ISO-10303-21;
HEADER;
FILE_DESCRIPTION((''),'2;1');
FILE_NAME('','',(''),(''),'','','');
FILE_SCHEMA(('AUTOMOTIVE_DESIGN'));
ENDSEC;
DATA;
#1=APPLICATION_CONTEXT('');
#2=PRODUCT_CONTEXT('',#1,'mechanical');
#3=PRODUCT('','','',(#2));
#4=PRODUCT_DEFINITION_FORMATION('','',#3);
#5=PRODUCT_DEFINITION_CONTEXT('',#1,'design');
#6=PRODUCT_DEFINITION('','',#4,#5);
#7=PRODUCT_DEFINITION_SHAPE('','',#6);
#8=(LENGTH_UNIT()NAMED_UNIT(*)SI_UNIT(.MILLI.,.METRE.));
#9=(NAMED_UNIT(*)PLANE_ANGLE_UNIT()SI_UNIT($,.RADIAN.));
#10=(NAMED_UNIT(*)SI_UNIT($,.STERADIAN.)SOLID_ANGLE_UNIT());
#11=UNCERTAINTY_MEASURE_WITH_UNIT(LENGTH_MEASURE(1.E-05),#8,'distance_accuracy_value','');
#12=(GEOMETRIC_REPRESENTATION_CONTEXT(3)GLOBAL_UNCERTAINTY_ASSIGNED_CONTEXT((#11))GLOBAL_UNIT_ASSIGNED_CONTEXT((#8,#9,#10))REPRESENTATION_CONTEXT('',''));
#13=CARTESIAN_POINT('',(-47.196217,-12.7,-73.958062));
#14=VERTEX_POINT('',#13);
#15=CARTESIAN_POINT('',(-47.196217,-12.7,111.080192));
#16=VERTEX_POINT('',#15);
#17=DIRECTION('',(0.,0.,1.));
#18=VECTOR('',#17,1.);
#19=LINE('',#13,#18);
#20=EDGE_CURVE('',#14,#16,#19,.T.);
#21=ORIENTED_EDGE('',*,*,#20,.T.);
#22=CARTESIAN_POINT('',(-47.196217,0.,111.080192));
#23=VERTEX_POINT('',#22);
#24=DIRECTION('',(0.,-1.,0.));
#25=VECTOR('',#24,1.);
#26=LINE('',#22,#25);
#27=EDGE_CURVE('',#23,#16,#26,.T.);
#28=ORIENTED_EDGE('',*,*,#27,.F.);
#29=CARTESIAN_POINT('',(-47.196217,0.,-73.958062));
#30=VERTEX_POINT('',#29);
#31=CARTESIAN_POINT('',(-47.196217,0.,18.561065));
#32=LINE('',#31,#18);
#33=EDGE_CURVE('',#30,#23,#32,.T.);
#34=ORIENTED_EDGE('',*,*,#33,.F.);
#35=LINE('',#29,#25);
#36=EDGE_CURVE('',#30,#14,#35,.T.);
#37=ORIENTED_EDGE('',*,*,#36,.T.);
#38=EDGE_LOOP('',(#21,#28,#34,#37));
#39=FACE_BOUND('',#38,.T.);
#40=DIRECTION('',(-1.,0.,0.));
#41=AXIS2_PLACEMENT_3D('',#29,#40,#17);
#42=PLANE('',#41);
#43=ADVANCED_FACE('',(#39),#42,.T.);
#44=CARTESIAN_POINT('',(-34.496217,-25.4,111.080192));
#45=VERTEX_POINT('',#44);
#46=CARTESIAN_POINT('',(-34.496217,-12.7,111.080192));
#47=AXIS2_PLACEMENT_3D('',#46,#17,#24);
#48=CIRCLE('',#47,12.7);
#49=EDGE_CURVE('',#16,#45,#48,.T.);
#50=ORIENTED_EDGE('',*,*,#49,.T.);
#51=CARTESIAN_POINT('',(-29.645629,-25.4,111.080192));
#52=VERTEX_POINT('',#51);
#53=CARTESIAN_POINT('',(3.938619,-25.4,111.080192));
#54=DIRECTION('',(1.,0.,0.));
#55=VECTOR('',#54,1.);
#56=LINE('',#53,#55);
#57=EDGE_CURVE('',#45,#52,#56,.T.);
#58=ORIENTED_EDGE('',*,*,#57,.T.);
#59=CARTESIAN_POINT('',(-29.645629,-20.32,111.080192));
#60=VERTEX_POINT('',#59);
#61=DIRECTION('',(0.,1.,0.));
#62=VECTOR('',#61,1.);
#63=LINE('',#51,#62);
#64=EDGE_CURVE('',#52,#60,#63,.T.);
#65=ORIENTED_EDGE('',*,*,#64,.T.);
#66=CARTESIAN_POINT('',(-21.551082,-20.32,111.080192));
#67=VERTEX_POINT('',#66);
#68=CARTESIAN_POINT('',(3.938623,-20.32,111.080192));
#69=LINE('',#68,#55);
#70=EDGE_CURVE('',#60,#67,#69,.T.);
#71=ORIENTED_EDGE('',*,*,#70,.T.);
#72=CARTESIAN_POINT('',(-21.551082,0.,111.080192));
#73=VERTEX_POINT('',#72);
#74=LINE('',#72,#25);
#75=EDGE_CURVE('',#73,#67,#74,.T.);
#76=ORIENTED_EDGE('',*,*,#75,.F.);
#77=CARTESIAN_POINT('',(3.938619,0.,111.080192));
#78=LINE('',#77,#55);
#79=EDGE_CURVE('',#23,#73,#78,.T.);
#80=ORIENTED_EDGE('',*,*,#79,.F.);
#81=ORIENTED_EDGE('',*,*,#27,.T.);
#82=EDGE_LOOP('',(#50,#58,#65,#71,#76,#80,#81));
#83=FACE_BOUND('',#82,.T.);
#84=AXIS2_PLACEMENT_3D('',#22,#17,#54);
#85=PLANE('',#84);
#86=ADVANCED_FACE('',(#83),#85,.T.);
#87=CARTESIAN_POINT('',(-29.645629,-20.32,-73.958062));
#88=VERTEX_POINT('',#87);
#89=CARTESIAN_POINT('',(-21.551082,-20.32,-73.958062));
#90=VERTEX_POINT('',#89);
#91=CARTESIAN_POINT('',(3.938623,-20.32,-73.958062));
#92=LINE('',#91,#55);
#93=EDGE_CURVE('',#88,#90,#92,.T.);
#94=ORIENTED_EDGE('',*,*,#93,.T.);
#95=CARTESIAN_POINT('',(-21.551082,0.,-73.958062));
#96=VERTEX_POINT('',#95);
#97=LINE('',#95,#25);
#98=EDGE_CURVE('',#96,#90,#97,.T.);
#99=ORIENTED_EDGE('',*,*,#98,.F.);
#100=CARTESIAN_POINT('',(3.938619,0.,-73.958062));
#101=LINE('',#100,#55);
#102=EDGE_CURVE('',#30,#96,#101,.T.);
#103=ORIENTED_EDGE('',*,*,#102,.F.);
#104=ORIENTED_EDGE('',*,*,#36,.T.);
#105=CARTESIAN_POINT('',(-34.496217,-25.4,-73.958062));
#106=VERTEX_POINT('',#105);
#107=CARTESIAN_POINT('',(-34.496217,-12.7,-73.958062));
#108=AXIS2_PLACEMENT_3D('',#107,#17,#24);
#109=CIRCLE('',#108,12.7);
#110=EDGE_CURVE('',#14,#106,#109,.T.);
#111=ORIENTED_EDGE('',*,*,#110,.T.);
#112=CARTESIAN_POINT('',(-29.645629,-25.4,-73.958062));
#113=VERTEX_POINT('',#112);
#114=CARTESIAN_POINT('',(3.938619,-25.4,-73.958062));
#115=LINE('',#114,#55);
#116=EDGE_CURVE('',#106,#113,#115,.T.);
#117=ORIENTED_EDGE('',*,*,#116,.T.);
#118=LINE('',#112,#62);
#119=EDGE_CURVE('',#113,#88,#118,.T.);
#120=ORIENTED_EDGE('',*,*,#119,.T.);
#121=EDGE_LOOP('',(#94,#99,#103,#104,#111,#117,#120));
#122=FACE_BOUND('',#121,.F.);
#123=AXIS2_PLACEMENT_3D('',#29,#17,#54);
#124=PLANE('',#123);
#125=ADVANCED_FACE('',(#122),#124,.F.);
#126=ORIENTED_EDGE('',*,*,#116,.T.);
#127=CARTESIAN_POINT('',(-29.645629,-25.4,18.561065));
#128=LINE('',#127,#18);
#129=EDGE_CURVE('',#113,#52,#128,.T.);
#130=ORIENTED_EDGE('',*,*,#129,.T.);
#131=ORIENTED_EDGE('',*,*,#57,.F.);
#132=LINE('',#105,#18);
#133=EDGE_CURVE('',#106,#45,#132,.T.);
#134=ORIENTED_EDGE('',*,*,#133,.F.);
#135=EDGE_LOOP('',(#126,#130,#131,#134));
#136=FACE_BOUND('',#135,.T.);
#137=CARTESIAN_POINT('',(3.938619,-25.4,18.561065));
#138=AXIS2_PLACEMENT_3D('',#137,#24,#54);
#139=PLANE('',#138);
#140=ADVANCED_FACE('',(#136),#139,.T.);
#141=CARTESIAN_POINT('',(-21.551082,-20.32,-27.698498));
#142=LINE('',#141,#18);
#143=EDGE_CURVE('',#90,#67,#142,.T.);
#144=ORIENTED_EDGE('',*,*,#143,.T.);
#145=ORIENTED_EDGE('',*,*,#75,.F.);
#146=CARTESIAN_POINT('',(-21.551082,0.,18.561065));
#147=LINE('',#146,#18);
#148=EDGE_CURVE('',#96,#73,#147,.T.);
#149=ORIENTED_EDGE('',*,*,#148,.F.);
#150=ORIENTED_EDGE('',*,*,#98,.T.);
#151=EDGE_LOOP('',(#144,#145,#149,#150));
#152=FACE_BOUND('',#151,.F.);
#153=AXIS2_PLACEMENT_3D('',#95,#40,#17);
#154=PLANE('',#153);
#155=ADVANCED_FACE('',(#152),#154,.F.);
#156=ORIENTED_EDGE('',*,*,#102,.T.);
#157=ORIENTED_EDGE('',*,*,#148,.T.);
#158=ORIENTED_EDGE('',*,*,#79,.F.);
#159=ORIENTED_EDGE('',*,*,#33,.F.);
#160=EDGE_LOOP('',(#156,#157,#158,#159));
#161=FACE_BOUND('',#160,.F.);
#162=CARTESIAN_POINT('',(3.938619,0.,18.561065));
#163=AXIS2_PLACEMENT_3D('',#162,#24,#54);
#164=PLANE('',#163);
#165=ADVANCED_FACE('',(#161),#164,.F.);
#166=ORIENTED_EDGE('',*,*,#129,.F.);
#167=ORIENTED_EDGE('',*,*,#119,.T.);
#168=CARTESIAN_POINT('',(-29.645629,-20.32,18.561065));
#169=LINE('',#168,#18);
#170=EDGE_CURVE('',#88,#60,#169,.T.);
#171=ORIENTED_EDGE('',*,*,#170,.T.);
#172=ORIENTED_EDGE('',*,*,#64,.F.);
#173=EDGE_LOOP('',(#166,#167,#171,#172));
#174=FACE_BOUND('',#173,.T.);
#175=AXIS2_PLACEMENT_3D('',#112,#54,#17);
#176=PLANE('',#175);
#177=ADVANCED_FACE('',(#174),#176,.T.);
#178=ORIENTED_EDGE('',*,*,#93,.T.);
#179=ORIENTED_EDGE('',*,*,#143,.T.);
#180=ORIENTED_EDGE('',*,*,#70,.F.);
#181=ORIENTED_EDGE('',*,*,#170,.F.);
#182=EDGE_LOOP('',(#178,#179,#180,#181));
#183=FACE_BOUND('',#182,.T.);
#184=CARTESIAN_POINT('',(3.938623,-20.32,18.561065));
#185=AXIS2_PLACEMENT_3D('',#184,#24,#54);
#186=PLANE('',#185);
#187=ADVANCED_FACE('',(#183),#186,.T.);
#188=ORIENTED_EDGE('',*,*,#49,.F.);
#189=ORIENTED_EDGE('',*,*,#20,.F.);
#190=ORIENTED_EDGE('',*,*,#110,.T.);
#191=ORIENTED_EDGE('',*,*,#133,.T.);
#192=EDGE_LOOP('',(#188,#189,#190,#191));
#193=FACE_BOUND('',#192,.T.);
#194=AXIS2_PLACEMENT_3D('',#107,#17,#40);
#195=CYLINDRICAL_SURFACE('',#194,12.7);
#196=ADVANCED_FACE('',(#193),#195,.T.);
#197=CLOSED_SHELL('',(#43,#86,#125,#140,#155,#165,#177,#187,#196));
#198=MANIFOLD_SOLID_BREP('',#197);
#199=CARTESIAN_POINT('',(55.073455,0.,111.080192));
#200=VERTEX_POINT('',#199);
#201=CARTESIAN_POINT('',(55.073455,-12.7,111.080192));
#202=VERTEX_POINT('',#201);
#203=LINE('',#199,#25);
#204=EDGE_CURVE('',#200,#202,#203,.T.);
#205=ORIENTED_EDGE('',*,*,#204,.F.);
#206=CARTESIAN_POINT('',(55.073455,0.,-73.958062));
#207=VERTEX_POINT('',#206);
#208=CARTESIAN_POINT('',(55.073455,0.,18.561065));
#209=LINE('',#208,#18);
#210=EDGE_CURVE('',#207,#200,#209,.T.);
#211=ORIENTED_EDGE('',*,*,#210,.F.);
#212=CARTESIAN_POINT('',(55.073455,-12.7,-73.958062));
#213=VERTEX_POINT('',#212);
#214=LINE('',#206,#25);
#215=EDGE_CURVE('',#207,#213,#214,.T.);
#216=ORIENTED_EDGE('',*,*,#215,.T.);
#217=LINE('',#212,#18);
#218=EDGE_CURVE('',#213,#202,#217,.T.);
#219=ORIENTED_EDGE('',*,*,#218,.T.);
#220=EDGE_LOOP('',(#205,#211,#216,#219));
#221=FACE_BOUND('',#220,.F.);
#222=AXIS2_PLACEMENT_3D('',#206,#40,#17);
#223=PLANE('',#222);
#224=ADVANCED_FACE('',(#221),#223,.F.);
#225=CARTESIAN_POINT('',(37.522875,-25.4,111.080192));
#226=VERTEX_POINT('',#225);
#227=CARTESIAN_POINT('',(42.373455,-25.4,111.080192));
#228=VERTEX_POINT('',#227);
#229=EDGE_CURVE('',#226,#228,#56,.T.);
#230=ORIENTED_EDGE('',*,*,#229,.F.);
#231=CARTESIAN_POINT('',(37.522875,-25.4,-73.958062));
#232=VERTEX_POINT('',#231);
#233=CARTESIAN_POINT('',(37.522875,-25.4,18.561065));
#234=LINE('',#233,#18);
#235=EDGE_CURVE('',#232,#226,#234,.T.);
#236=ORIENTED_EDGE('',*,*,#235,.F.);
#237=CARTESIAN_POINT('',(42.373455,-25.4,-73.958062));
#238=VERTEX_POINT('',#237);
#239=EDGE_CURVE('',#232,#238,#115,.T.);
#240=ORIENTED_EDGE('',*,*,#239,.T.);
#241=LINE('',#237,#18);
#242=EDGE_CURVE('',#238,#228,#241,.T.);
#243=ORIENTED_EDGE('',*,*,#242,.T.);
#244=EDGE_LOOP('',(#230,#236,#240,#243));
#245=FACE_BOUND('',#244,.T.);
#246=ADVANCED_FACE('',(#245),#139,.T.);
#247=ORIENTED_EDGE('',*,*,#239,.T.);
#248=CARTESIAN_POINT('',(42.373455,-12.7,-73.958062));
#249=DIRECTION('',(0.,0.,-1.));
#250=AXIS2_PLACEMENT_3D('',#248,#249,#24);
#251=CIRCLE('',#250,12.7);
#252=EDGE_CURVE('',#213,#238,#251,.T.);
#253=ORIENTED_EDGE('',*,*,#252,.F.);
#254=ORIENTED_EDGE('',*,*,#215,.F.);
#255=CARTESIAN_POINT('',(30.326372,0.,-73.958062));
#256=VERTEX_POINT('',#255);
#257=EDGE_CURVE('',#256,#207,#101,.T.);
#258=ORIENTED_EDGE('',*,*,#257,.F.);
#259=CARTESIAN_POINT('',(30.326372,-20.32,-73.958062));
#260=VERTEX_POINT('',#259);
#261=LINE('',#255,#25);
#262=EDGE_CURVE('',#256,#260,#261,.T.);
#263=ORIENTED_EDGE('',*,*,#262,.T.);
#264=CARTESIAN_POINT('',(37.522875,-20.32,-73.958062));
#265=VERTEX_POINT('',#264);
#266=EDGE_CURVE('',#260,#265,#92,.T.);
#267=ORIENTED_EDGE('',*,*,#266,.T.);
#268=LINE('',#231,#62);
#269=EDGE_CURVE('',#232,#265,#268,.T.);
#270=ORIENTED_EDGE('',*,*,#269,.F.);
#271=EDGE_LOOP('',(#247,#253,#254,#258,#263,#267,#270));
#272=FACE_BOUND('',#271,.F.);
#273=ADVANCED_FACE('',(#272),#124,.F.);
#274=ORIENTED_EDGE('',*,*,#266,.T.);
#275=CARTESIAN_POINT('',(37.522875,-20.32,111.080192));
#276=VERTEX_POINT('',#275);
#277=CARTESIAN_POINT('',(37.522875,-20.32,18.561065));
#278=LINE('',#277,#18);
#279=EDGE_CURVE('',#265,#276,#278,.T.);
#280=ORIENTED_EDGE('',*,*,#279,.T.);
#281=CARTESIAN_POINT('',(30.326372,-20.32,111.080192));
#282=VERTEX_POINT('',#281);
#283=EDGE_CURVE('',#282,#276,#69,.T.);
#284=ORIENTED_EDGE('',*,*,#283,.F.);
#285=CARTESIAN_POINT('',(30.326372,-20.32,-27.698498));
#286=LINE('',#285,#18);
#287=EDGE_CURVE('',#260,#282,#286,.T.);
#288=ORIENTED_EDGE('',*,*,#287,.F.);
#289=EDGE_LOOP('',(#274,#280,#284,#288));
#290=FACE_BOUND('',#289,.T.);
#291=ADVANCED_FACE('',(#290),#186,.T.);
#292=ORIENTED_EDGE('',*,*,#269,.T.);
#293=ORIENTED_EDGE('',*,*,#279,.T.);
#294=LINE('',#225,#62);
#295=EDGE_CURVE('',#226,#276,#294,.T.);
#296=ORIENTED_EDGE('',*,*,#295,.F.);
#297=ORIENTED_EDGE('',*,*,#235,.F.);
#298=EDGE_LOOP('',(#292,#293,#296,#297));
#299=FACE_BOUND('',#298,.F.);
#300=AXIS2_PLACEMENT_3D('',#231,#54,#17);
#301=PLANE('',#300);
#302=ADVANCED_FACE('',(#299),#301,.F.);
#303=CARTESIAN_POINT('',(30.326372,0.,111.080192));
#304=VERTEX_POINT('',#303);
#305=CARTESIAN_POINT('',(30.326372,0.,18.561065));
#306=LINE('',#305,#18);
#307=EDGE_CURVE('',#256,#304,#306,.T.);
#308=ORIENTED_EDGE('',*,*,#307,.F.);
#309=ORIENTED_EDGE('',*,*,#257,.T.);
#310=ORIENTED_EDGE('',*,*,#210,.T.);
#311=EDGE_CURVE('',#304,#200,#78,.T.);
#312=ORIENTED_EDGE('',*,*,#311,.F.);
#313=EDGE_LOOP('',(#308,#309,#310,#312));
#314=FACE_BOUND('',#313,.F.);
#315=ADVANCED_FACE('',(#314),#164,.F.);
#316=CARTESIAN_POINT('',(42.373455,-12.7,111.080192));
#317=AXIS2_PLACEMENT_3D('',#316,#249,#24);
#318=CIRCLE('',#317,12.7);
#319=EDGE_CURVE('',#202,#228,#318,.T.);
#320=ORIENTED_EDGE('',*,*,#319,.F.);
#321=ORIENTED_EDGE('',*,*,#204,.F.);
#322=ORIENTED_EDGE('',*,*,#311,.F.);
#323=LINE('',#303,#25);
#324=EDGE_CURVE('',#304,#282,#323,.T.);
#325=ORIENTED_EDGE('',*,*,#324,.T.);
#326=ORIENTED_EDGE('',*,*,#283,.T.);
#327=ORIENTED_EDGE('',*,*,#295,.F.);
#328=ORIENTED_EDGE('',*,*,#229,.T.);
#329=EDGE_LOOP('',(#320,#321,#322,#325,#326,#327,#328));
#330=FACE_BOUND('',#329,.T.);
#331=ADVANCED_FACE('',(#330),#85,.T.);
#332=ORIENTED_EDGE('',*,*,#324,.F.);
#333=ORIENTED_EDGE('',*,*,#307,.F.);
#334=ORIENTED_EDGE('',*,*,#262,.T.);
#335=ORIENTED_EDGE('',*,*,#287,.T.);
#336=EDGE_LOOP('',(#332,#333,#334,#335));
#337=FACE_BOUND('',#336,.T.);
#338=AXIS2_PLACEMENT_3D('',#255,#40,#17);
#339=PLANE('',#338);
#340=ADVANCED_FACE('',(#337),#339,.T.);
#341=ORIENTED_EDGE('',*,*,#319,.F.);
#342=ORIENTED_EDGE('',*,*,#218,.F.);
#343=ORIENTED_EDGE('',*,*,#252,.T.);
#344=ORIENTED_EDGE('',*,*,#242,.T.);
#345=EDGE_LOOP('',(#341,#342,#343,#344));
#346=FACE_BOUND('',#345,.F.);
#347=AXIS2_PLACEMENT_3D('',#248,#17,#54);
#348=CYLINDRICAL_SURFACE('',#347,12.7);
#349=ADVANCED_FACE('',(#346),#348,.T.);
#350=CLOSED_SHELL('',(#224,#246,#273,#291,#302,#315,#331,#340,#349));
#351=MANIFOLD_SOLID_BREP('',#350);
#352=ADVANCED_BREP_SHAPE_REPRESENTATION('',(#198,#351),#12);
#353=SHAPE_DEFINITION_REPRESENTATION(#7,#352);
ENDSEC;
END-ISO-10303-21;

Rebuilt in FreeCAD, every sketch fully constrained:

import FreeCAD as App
import Part
import Sketcher
from FreeCAD import Vector
Q = App.Units.Quantity


def edges_at(feature, points):
    """Names of the edges that pass closest to the given points."""
    edges = feature.Shape.Edges
    near = lambda p: min(range(len(edges)), key=lambda i: edges[i].distToShape(Part.Vertex(*p))[0])
    return sorted({f"Edge{near(p) + 1}" for p in points})


def add_polygon(sketch, points):
    """Adds a closed chain of lines whose ends are joined by coincident constraints."""
    first, n = sketch.GeometryCount, len(points)
    for a, b in zip(points, points[1:] + points[:1]):
        sketch.addGeometry(Part.LineSegment(App.Vector(*a, 0), App.Vector(*b, 0)), False)
    for i in range(n):
        sketch.addConstraint(Sketcher.Constraint("Coincident", first + i, 2, first + (i + 1) % n, 1))

doc = App.newDocument("Part")
body = doc.addObject("PartDesign::Body", "Body")
body.AllowCompound = True

sketch1 = body.newObject("Sketcher::SketchObject", "Sketch")
sketch1.AttachmentSupport = (doc.getObject("XZ_Plane"), [""])
sketch1.MapMode = "FlatFace"
add_polygon(sketch1, [(-47.196217, 111.080192), (-47.196217, -73.958062), (55.073455, -73.958062), (55.073455, 111.080192)])
sketch1.addConstraint([
    Sketcher.Constraint("Vertical", 0),
    Sketcher.Constraint("Horizontal", 1),
    Sketcher.Constraint("Vertical", 2),
    Sketcher.Constraint("Horizontal", 3),
    Sketcher.Constraint("DistanceX", 1, 1, 1, 2, Q("102.269672 mm")),
    Sketcher.Constraint("DistanceY", 0, 2, 0, 1, Q("185.038254 mm")),
    Sketcher.Constraint("DistanceY", 0, 2, -1, 1, Q("73.958062 mm")),
    Sketcher.Constraint("DistanceX", 0, 2, -1, 1, Q("47.196217 mm")),
])
pad1 = body.newObject("PartDesign::Pad", "Pad")
pad1.Profile = sketch1
pad1.Length = Q("1 in")
doc.recompute()

fillet = body.newObject("PartDesign::Fillet", "Fillet")
fillet.Base = (pad1, edges_at(pad1, [(55.073, -25.4, 18.561), (-47.196, -25.4, 18.561)]))
fillet.Radius = Q("0.5 in")

sketch2 = body.newObject("Sketcher::SketchObject", "Sketch001")
sketch2.AttachmentSupport = (doc.getObject("XZ_Plane"), [""])
sketch2.MapMode = "FlatFace"
add_polygon(sketch2, [(30.326372, 111.080192), (30.326372, -73.958062), (-21.551082, -73.958062), (-21.551082, 111.080192)])
sketch2.addConstraint([
    Sketcher.Constraint("Vertical", 0),
    Sketcher.Constraint("Horizontal", 1),
    Sketcher.Constraint("Vertical", 2),
    Sketcher.Constraint("Horizontal", 3),
    Sketcher.Constraint("DistanceX", 1, 2, 1, 1, Q("51.877454 mm")),
    Sketcher.Constraint("DistanceY", 0, 2, 0, 1, Q("185.038254 mm")),
    Sketcher.Constraint("DistanceX", -1, 1, 0, 2, Q("30.326372 mm")),
    Sketcher.Constraint("DistanceY", 0, 2, -1, 1, Q("73.958062 mm")),
])
pocket1 = body.newObject("PartDesign::Pocket", "Pocket")
pocket1.Profile = sketch2
pocket1.Length = Q("0.85 in")
pocket1.Reversed = True

sketch3 = body.newObject("Sketcher::SketchObject", "Sketch002")
sketch3.AttachmentSupport = (doc.getObject("XZ_Plane"), [""])
sketch3.MapMode = "FlatFace"
sketch3.AttachmentOffset = App.Placement(Vector(0, 0, 1 * 25.4), App.Rotation())
add_polygon(sketch3, [(-29.645629, 111.080192), (-29.645629, -73.958062), (37.522875, -73.958062), (37.522875, 111.080192)])
sketch3.addConstraint([
    Sketcher.Constraint("Vertical", 0),
    Sketcher.Constraint("Horizontal", 1),
    Sketcher.Constraint("Vertical", 2),
    Sketcher.Constraint("Horizontal", 3),
    Sketcher.Constraint("DistanceX", 1, 1, 1, 2, Q("67.168505 mm")),
    Sketcher.Constraint("DistanceY", 0, 2, 0, 1, Q("185.038254 mm")),
    Sketcher.Constraint("DistanceX", 0, 2, -1, 1, Q("29.645629 mm")),
    Sketcher.Constraint("DistanceY", 0, 2, -1, 1, Q("73.958062 mm")),
])
pocket2 = body.newObject("PartDesign::Pocket", "Pocket001")
pocket2.Profile = sketch3
pocket2.Length = Q("0.2 in")

doc.recompute()
